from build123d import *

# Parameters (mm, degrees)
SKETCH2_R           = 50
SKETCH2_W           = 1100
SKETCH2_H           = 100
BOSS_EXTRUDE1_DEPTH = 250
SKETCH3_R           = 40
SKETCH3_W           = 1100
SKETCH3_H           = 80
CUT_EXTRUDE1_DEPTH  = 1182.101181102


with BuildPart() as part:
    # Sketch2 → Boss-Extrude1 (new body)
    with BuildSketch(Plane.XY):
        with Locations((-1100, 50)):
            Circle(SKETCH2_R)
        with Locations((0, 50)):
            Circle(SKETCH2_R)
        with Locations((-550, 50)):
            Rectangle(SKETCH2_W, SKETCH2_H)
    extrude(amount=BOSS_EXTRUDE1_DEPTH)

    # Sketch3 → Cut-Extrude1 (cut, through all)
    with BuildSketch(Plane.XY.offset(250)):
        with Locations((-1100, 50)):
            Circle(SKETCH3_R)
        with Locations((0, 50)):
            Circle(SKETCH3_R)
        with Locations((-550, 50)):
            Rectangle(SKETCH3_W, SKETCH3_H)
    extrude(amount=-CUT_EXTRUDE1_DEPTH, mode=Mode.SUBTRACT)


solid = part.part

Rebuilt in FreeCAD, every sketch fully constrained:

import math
import FreeCAD as App
import Part
import Sketcher

doc = App.newDocument("Part")
body = doc.addObject("PartDesign::Body", "Body")

sketch1 = body.newObject("Sketcher::SketchObject", "Sketch")
sketch1.AttachmentSupport = (doc.getObject("XY_Plane"), [""])
sketch1.MapMode = "FlatFace"
sketch1.addGeometry(Part.LineSegment(App.Vector(-1100, 0, 0), App.Vector(0, 0, 0)), False)
sketch1.addGeometry(Part.ArcOfCircle(Part.Circle(App.Vector(0, 50, 0), App.Vector(0, 0, 1), 50), math.radians(-90), math.radians(90)), False)
sketch1.addGeometry(Part.LineSegment(App.Vector(0, 100, 0), App.Vector(-1100, 100, 0)), False)
sketch1.addGeometry(Part.ArcOfCircle(Part.Circle(App.Vector(-1100, 50, 0), App.Vector(0, 0, 1), 50), math.radians(90), math.radians(270)), False)
sketch1.addConstraint(Sketcher.Constraint("Tangent", 0, 2, 1, 1))
sketch1.addConstraint(Sketcher.Constraint("Tangent", 1, 2, 2, 1))
sketch1.addConstraint(Sketcher.Constraint("Tangent", 2, 2, 3, 1))
sketch1.addConstraint(Sketcher.Constraint("Tangent", 3, 2, 0, 1))
sketch1.addConstraint(Sketcher.Constraint("Horizontal", 0))
sketch1.addConstraint(Sketcher.Constraint("Horizontal", 2))
sketch1.addConstraint(Sketcher.Constraint("Coincident", 0, 2, -1, 1))
sketch1.addConstraint(Sketcher.Constraint("Radius", 1, 50.0))
sketch1.addConstraint(Sketcher.Constraint("DistanceX", 0, 1, 0, 2, 1100.0))
pad1 = body.newObject("PartDesign::Pad", "Pad")
pad1.Profile = sketch1
pad1.Length = 250

sketch2 = body.newObject("Sketcher::SketchObject", "Sketch001")
sketch2.AttachmentSupport = (doc.getObject("XY_Plane"), [""])
sketch2.MapMode = "FlatFace"
sketch2.AttachmentOffset = App.Placement(App.Vector(0, 0, 250), App.Rotation())
sketch2.addGeometry(Part.LineSegment(App.Vector(-1100, 10, 0), App.Vector(0, 10, 0)), False)
sketch2.addGeometry(Part.ArcOfCircle(Part.Circle(App.Vector(0, 50, 0), App.Vector(0, 0, 1), 40), math.radians(-90), math.radians(90)), False)
sketch2.addGeometry(Part.LineSegment(App.Vector(0, 90, 0), App.Vector(-1100, 90, 0)), False)
sketch2.addGeometry(Part.ArcOfCircle(Part.Circle(App.Vector(-1100, 50, 0), App.Vector(0, 0, 1), 40), math.radians(90), math.radians(270)), False)
sketch2.addConstraint(Sketcher.Constraint("Tangent", 0, 2, 1, 1))
sketch2.addConstraint(Sketcher.Constraint("Tangent", 1, 2, 2, 1))
sketch2.addConstraint(Sketcher.Constraint("Tangent", 2, 2, 3, 1))
sketch2.addConstraint(Sketcher.Constraint("Tangent", 3, 2, 0, 1))
sketch2.addConstraint(Sketcher.Constraint("Horizontal", 0))
sketch2.addConstraint(Sketcher.Constraint("Horizontal", 2))
sketch2.addConstraint(Sketcher.Constraint("PointOnObject", 1, 3, -2))
sketch2.addConstraint(Sketcher.Constraint("Radius", 1, 40.0))
sketch2.addConstraint(Sketcher.Constraint("DistanceX", 0, 1, 0, 2, 1100.0))
sketch2.addConstraint(Sketcher.Constraint("DistanceY", -1, 1, 1, 3, 50.0))
pocket1 = body.newObject("PartDesign::Pocket", "Pocket")
pocket1.Profile = sketch2
pocket1.Type = "ThroughAll"

doc.recompute()
